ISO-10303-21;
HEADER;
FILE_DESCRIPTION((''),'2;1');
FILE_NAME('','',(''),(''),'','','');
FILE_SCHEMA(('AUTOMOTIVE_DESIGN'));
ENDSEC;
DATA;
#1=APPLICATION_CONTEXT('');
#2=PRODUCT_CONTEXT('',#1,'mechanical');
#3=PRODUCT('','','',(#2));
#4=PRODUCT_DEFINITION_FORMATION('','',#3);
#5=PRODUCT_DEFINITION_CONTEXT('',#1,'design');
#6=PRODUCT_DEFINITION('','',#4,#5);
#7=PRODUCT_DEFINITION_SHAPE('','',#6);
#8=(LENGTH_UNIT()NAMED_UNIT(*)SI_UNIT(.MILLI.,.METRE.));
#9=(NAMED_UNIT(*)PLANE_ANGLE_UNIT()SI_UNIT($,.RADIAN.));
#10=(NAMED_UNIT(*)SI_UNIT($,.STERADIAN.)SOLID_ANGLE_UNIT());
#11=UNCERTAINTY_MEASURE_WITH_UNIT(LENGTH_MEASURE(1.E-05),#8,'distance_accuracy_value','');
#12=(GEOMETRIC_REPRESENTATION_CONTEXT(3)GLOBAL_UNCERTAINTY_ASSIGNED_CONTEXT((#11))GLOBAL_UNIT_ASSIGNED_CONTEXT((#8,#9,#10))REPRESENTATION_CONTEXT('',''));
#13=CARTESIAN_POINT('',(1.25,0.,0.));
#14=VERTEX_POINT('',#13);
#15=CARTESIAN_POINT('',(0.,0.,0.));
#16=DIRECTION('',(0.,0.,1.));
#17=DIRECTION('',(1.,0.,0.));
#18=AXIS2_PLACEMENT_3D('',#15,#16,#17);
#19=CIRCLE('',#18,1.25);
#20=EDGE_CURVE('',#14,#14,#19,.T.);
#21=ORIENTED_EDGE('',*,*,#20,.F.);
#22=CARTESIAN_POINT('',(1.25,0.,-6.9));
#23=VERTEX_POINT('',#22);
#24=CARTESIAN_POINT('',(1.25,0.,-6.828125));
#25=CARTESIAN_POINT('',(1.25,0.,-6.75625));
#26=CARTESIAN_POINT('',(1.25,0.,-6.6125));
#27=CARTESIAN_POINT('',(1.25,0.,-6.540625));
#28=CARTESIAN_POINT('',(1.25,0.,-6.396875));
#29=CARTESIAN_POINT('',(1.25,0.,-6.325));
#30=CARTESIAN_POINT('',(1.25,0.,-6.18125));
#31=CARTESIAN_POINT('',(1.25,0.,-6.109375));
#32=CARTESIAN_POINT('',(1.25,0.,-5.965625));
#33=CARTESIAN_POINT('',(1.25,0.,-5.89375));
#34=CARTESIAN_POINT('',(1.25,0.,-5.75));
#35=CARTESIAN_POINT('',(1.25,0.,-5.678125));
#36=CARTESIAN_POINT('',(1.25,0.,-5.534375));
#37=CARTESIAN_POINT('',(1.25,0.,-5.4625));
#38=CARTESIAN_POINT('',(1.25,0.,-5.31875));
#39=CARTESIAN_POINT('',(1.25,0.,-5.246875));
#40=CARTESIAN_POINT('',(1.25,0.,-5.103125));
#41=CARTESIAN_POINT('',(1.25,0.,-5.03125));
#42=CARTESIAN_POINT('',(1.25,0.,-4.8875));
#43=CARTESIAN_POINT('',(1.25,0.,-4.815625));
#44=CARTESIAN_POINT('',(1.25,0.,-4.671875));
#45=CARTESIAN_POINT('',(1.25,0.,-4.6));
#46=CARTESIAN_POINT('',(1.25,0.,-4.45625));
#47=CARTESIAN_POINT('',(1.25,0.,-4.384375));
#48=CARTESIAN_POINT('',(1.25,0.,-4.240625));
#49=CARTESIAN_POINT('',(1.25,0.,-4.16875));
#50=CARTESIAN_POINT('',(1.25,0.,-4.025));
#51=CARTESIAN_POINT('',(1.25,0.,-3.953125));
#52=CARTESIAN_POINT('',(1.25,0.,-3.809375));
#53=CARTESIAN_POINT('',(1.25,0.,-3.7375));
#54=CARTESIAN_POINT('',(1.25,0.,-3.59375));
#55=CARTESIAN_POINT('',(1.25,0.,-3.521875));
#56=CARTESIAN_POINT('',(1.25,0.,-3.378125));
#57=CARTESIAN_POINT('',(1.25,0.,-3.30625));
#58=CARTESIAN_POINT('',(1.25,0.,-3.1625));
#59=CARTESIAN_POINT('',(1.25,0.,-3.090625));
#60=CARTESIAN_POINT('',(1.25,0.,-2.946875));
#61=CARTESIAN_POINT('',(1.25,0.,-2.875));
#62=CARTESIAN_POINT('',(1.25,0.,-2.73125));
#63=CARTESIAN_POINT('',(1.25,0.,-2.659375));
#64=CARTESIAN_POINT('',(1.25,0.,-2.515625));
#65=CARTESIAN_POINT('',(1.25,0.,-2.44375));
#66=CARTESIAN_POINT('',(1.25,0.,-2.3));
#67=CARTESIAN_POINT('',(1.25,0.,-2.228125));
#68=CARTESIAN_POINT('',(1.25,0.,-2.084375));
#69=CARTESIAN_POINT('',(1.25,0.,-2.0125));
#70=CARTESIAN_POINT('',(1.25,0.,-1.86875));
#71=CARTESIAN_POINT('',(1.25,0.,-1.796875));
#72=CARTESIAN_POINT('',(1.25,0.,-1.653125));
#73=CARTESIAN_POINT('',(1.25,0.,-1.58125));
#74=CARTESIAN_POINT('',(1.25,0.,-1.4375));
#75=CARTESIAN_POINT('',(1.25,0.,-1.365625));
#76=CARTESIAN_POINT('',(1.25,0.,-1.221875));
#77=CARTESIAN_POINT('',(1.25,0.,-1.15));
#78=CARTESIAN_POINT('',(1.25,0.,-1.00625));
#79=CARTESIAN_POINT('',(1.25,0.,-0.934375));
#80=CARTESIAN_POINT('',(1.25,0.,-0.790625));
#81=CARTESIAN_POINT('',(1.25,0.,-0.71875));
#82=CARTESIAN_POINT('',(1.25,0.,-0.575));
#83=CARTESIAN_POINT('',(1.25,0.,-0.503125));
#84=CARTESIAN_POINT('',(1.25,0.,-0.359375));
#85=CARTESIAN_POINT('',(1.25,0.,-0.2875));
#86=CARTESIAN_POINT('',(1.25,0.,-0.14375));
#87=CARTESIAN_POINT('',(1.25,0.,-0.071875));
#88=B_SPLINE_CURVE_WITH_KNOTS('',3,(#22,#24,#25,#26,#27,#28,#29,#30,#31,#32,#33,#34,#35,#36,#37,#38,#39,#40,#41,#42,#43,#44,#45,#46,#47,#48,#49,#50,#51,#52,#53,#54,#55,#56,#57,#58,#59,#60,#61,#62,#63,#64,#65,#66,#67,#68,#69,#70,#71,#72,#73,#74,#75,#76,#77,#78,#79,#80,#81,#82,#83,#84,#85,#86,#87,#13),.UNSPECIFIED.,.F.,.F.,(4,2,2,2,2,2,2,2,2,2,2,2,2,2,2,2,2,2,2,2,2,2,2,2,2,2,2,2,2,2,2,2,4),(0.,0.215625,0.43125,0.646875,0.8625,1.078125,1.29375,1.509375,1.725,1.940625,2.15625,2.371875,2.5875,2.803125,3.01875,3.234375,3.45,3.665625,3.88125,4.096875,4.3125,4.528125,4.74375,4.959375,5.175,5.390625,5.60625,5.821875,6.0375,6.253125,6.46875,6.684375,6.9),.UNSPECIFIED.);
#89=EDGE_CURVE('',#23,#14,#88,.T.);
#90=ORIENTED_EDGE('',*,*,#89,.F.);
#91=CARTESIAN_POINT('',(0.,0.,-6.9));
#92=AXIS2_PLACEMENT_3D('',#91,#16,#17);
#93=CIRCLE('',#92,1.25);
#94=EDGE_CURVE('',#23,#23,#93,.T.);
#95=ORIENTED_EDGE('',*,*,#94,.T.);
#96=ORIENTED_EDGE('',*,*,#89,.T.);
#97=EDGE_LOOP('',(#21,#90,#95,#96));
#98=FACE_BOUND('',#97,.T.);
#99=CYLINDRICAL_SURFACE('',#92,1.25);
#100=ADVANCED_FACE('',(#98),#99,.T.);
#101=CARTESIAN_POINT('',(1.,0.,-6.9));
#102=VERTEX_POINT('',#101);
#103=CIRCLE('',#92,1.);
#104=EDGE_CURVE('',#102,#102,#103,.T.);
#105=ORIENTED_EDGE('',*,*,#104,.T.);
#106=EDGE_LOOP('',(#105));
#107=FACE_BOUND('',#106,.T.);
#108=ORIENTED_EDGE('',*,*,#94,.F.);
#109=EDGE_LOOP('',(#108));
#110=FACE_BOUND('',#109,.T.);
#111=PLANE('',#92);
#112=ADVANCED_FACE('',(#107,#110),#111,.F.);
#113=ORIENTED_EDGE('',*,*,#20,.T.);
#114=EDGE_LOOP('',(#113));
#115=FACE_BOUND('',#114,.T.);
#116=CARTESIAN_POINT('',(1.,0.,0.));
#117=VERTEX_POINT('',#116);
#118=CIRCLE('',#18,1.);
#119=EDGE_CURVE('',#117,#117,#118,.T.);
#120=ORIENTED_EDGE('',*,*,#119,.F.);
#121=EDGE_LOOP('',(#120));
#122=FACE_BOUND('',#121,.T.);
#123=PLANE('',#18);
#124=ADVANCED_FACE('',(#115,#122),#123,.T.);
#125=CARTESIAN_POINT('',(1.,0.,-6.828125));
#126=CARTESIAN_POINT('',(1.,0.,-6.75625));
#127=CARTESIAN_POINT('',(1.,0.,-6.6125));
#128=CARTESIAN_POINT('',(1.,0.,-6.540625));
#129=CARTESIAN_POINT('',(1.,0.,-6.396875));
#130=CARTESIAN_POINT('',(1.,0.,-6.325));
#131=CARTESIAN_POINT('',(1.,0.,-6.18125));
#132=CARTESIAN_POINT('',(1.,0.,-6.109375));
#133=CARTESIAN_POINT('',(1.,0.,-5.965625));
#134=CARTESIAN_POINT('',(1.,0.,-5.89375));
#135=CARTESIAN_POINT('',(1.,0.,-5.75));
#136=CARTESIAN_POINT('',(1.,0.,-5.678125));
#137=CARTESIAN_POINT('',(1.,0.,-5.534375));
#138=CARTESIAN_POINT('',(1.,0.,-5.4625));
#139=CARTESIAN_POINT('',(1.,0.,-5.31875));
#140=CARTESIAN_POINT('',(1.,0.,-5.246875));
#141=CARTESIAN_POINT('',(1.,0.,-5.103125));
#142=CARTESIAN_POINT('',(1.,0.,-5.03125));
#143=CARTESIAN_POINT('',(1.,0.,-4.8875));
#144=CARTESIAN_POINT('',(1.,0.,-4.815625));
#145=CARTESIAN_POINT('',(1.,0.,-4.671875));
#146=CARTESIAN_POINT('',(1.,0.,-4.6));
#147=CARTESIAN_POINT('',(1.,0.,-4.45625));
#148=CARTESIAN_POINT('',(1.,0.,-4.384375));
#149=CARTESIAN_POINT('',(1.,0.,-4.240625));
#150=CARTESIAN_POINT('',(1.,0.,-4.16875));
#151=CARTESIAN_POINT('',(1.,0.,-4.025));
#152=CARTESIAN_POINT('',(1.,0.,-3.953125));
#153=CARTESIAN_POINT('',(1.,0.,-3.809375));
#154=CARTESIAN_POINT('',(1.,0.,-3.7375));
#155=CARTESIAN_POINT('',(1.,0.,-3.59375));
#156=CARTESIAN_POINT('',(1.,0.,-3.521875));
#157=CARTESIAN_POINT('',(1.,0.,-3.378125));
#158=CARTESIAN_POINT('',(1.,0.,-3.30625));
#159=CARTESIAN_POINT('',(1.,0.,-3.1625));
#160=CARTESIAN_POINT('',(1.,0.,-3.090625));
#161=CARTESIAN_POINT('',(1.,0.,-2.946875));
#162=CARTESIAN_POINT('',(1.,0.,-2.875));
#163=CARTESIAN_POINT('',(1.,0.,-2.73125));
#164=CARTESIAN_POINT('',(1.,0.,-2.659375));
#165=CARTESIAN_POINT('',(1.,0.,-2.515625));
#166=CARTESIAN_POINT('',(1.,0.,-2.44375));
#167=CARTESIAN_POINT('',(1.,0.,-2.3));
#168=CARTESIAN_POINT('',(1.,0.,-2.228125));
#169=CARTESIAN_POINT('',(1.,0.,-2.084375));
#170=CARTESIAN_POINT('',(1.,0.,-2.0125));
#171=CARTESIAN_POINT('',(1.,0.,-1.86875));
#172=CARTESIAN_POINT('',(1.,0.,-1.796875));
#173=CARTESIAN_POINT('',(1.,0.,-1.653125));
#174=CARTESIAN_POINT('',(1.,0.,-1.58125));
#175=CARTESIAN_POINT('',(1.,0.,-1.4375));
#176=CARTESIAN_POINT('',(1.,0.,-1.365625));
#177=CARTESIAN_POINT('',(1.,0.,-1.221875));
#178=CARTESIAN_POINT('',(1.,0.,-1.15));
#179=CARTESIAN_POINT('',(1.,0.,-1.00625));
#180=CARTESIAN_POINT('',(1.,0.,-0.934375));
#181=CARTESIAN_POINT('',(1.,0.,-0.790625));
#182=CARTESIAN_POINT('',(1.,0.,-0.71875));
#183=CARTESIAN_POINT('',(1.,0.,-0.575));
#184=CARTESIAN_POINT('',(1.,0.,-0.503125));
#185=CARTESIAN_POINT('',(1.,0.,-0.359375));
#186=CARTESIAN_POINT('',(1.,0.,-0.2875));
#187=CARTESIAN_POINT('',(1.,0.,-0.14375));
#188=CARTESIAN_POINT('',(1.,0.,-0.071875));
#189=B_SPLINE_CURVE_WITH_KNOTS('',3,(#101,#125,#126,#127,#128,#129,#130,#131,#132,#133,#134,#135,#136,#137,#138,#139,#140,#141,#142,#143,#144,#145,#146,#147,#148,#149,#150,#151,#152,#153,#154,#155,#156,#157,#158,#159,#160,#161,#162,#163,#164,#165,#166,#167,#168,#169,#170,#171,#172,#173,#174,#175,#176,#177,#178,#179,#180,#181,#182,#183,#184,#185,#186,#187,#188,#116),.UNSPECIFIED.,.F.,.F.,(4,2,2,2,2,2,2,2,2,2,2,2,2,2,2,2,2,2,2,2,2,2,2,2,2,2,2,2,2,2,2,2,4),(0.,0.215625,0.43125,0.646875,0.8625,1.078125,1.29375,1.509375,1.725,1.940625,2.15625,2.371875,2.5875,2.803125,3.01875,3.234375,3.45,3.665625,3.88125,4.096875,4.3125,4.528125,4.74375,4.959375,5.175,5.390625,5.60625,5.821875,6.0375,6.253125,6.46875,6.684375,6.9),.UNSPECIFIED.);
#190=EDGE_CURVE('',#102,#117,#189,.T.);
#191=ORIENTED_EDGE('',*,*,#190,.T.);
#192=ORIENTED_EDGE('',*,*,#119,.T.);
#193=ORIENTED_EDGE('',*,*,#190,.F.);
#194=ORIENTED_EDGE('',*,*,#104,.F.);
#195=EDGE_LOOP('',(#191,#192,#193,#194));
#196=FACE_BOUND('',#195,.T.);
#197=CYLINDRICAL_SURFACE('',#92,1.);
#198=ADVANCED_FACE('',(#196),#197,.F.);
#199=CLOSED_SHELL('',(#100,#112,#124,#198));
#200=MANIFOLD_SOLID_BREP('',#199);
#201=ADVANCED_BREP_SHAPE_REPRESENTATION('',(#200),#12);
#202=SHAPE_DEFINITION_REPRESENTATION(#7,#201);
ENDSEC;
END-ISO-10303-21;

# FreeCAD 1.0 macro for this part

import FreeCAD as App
import Part
import Sketcher
from FreeCAD import Vector
Q = App.Units.Quantity

doc = App.newDocument("Part")
params = doc.addObject("Spreadsheet::Sheet", "Params")
for row, (alias, value) in enumerate([
    ("sketch1_diameter", "2 mm"),
    ("sketch1_diameter2", "2.5 mm"),
    ("pad1_length", "6.9 mm"),
], start=1):
    params.set(f"A{row}", alias)
    params.set(f"B{row}", "=" + value)
    params.setAlias(f"B{row}", alias)

body = doc.addObject("PartDesign::Body", "Body")

sketch1 = body.newObject("Sketcher::SketchObject", "Sketch")
sketch1.AttachmentSupport = (doc.getObject("XY_Plane"), [""])
sketch1.MapMode = "FlatFace"
sketch1.addGeometry([
    Part.Circle(Vector(0, 0, 0), Vector(0, 0, 1), 1.2),
    Part.Circle(Vector(0, 0, 0), Vector(0, 0, 1), 1),
], False)
sketch1.addConstraint([
    Sketcher.Constraint("Coincident", 0, 3, -1, 1),
    Sketcher.Constraint("Coincident", 1, 3, -1, 1),
    Sketcher.Constraint("Diameter", 1, Q("2 mm")),
    Sketcher.Constraint("Diameter", 0, Q("2.5 mm")),
])
sketch1.setExpression("Constraints[2]", "Params.sketch1_diameter")
sketch1.setExpression("Constraints[3]", "Params.sketch1_diameter2")
pad1 = body.newObject("PartDesign::Pad", "Pad")
pad1.Profile = sketch1
pad1.setExpression("Length", "Params.pad1_length")
pad1.Reversed = True

doc.recompute()
